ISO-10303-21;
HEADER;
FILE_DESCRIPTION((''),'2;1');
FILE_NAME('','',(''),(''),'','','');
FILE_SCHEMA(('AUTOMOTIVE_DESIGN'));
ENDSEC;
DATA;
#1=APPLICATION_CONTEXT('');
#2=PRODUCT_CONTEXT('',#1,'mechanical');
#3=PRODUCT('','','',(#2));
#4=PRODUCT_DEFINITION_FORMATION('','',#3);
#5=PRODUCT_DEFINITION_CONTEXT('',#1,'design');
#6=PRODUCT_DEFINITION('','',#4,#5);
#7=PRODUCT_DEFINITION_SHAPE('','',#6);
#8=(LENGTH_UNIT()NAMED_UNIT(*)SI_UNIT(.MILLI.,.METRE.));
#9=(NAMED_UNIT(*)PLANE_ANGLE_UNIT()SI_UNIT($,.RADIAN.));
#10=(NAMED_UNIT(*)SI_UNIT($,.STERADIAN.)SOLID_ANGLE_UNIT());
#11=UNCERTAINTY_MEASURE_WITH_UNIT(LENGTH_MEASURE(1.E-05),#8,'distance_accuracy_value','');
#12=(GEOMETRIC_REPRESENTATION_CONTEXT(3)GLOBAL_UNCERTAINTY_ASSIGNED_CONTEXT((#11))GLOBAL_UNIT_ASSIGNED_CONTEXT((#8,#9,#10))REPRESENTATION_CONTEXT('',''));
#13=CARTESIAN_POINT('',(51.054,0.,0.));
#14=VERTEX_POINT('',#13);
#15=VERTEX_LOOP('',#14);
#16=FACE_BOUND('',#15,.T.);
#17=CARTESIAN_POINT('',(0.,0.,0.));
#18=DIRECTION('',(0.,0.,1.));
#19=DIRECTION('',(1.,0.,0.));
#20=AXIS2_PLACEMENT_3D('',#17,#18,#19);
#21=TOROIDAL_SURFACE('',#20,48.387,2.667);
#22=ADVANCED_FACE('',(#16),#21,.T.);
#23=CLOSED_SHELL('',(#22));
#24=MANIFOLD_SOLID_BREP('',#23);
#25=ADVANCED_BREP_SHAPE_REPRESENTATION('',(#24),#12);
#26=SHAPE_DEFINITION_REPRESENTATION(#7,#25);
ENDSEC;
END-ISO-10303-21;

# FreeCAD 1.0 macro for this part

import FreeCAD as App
import Part
import Sketcher
from FreeCAD import Vector
Q = App.Units.Quantity

doc = App.newDocument("Part")
params = doc.addObject("Spreadsheet::Sheet", "Params")
for row, (alias, value) in enumerate([
    ("sketch1_diameter", "0.21 in"),
    ("revolution_angle", "360 deg"),
], start=1):
    params.set(f"A{row}", alias)
    params.set(f"B{row}", "=" + value)
    params.setAlias(f"B{row}", alias)

body = doc.addObject("PartDesign::Body", "Body")

# Sketch on YZ plane
sketch1 = doc.addObject("Sketcher::SketchObject", "Sketch")
body.addObject(sketch1)
sketch1.AttachmentSupport = (doc.YZ_Plane, [""])
sketch1.MapMode = "FlatFace"
sketch1.addGeometry(Part.Circle(Vector(-48.4, 0, 0), Vector(0, 0, 1), 2.7), False)
sketch1.addConstraint(Sketcher.Constraint("PointOnObject", 0, 3, -1))
sketch1.addConstraint(Sketcher.Constraint("Diameter", 0, Q("0.21 in")))
sketch1.addConstraint(Sketcher.Constraint("DistanceX", 0, 3, -1, 1, Q("1.905 in")))
sketch1.setExpression("Constraints[1]", "Params.sketch1_diameter")
revolution = doc.addObject("PartDesign::Revolution", "Revolution")
body.addObject(revolution)
revolution.Profile = sketch1
revolution.ReferenceAxis = (sketch1, ["V_Axis"])
revolution.setExpression("Angle", "Params.revolution_angle")

doc.recompute()
